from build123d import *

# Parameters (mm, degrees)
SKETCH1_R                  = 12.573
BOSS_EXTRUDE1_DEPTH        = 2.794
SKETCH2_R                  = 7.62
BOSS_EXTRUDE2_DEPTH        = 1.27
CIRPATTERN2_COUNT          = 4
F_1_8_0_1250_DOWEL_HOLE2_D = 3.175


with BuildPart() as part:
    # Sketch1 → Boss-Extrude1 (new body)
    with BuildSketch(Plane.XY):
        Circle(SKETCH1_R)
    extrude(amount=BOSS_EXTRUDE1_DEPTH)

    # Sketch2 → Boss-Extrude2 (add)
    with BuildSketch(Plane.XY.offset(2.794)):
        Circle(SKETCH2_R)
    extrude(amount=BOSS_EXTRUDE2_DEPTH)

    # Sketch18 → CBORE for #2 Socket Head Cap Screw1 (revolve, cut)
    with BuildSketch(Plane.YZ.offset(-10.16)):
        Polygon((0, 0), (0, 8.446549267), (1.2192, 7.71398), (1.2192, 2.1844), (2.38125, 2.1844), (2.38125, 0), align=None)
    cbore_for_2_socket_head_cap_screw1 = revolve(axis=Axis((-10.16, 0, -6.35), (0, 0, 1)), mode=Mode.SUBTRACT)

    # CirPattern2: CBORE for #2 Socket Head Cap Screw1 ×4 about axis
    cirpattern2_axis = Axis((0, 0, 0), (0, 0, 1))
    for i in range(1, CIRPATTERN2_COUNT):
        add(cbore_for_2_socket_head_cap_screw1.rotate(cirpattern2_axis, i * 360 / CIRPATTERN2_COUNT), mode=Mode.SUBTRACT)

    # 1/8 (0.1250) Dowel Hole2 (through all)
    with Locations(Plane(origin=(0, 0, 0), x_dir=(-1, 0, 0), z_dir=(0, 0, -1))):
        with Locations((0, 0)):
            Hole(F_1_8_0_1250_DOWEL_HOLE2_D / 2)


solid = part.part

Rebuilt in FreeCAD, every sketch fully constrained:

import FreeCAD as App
import Part
import Sketcher
from FreeCAD import Vector
Q = App.Units.Quantity

doc = App.newDocument("Part")
body = doc.addObject("PartDesign::Body", "Body")

# Sketch on XY plane
sketch1 = body.newObject("Sketcher::SketchObject", "Sketch")
sketch1.AttachmentSupport = (doc.getObject("XY_Plane"), [""])
sketch1.MapMode = "FlatFace"
sketch1.addGeometry(Part.Circle(Vector(0, 0, 0), Vector(0, 0, 1), 12.573), False)
sketch1.addConstraint(Sketcher.Constraint("Coincident", 0, 3, -1, 1))
sketch1.addConstraint(Sketcher.Constraint("Diameter", 0, Q("0.99 in")))
pad1 = body.newObject("PartDesign::Pad", "Pad")
pad1.Profile = sketch1
pad1.Length = Q("0.11 in")

# Sketch on XY plane
sketch2 = body.newObject("Sketcher::SketchObject", "Sketch001")
sketch2.AttachmentSupport = (doc.getObject("XY_Plane"), [""])
sketch2.MapMode = "FlatFace"
sketch2.AttachmentOffset = App.Placement(Vector(0, 0, 0.11 * 25.4), App.Rotation())
sketch2.addGeometry(Part.Circle(Vector(0, 0, 0), Vector(0, 0, 1), 7.62), False)
sketch2.addConstraint(Sketcher.Constraint("Coincident", 0, 3, -1, 1))
sketch2.addConstraint(Sketcher.Constraint("Diameter", 0, Q("0.6 in")))
pad2 = body.newObject("PartDesign::Pad", "Pad001")
pad2.Profile = sketch2
pad2.Length = Q("0.05 in")

# Sketch on YZ plane
sketch3 = body.newObject("Sketcher::SketchObject", "Sketch002")
sketch3.AttachmentSupport = (doc.getObject("YZ_Plane"), [""])
sketch3.MapMode = "FlatFace"
sketch3.AttachmentOffset = App.Placement(Vector(0, 0, -0.4 * 25.4), App.Rotation())
sketch3.addGeometry(Part.LineSegment(Vector(0, 8.446549, 0), Vector(0, 0, 0)), False)
sketch3.addGeometry(Part.LineSegment(Vector(0, 0, 0), Vector(2.38125, 0, 0)), False)
sketch3.addGeometry(Part.LineSegment(Vector(2.38125, 0, 0), Vector(2.38125, 2.1844, 0)), False)
sketch3.addGeometry(Part.LineSegment(Vector(2.38125, 2.1844, 0), Vector(1.2192, 2.1844, 0)), False)
sketch3.addGeometry(Part.LineSegment(Vector(1.2192, 2.1844, 0), Vector(1.2192, 7.71398, 0)), False)
sketch3.addGeometry(Part.LineSegment(Vector(1.2192, 7.71398, 0), Vector(0, 8.446549, 0)), False)
sketch3.addConstraint(Sketcher.Constraint("Coincident", 0, 2, 1, 1))
sketch3.addConstraint(Sketcher.Constraint("Coincident", 1, 2, 2, 1))
sketch3.addConstraint(Sketcher.Constraint("Coincident", 2, 2, 3, 1))
sketch3.addConstraint(Sketcher.Constraint("Coincident", 3, 2, 4, 1))
sketch3.addConstraint(Sketcher.Constraint("Coincident", 4, 2, 5, 1))
sketch3.addConstraint(Sketcher.Constraint("Coincident", 5, 2, 0, 1))
sketch3.addConstraint(Sketcher.Constraint("Vertical", 0))
sketch3.addConstraint(Sketcher.Constraint("Horizontal", 1))
sketch3.addConstraint(Sketcher.Constraint("Vertical", 2))
sketch3.addConstraint(Sketcher.Constraint("Horizontal", 3))
sketch3.addConstraint(Sketcher.Constraint("Vertical", 4))
sketch3.addConstraint(Sketcher.Constraint("Coincident", 0, 2, -1, 1))
sketch3.addConstraint(Sketcher.Constraint("Angle", 5, Q("149 deg")))
sketch3.addConstraint(Sketcher.Constraint("DistanceX", 1, 1, 1, 2, Q("0.09375 in")))
sketch3.addConstraint(Sketcher.Constraint("DistanceY", 2, 1, 2, 2, Q("0.086 in")))
sketch3.addConstraint(Sketcher.Constraint("DistanceY", 4, 1, 4, 2, Q("0.2177 in")))
sketch3.addConstraint(Sketcher.Constraint("DistanceX", -1, 1, 3, 2, Q("0.048 in")))
groove = body.newObject("PartDesign::Groove", "Groove")
groove.Profile = sketch3
groove.ReferenceAxis = (sketch3, ["V_Axis"])
groove.Angle = 360
doc.recompute()

polarpattern = body.newObject("PartDesign::PolarPattern", "PolarPattern")
polarpattern.Originals = [groove]
polarpattern.Axis = (doc.getObject("Z_Axis"), [""])
polarpattern.Angle = 360
polarpattern.Occurrences = 4
body.Tip = polarpattern

# Sketch on XY plane
sketch4 = body.newObject("Sketcher::SketchObject", "Sketch003")
sketch4.AttachmentSupport = (doc.getObject("XY_Plane"), [""])
sketch4.MapMode = "FlatFace"
sketch4.addGeometry(Part.Circle(Vector(0, 0, 0), Vector(0, 0, 1), 1.5875), False)
sketch4.addConstraint(Sketcher.Constraint("Coincident", 0, 3, -1, 1))
sketch4.addConstraint(Sketcher.Constraint("Diameter", 0, Q("0.125 in")))
doc.recompute()
hole = body.newObject("PartDesign::Hole", "Hole")
hole.Profile = sketch4
hole.ThreadType = "None"
hole.Diameter = Q("0.125 in")
hole.DepthType = "ThroughAll"
hole.Reversed = True

doc.recompute()
